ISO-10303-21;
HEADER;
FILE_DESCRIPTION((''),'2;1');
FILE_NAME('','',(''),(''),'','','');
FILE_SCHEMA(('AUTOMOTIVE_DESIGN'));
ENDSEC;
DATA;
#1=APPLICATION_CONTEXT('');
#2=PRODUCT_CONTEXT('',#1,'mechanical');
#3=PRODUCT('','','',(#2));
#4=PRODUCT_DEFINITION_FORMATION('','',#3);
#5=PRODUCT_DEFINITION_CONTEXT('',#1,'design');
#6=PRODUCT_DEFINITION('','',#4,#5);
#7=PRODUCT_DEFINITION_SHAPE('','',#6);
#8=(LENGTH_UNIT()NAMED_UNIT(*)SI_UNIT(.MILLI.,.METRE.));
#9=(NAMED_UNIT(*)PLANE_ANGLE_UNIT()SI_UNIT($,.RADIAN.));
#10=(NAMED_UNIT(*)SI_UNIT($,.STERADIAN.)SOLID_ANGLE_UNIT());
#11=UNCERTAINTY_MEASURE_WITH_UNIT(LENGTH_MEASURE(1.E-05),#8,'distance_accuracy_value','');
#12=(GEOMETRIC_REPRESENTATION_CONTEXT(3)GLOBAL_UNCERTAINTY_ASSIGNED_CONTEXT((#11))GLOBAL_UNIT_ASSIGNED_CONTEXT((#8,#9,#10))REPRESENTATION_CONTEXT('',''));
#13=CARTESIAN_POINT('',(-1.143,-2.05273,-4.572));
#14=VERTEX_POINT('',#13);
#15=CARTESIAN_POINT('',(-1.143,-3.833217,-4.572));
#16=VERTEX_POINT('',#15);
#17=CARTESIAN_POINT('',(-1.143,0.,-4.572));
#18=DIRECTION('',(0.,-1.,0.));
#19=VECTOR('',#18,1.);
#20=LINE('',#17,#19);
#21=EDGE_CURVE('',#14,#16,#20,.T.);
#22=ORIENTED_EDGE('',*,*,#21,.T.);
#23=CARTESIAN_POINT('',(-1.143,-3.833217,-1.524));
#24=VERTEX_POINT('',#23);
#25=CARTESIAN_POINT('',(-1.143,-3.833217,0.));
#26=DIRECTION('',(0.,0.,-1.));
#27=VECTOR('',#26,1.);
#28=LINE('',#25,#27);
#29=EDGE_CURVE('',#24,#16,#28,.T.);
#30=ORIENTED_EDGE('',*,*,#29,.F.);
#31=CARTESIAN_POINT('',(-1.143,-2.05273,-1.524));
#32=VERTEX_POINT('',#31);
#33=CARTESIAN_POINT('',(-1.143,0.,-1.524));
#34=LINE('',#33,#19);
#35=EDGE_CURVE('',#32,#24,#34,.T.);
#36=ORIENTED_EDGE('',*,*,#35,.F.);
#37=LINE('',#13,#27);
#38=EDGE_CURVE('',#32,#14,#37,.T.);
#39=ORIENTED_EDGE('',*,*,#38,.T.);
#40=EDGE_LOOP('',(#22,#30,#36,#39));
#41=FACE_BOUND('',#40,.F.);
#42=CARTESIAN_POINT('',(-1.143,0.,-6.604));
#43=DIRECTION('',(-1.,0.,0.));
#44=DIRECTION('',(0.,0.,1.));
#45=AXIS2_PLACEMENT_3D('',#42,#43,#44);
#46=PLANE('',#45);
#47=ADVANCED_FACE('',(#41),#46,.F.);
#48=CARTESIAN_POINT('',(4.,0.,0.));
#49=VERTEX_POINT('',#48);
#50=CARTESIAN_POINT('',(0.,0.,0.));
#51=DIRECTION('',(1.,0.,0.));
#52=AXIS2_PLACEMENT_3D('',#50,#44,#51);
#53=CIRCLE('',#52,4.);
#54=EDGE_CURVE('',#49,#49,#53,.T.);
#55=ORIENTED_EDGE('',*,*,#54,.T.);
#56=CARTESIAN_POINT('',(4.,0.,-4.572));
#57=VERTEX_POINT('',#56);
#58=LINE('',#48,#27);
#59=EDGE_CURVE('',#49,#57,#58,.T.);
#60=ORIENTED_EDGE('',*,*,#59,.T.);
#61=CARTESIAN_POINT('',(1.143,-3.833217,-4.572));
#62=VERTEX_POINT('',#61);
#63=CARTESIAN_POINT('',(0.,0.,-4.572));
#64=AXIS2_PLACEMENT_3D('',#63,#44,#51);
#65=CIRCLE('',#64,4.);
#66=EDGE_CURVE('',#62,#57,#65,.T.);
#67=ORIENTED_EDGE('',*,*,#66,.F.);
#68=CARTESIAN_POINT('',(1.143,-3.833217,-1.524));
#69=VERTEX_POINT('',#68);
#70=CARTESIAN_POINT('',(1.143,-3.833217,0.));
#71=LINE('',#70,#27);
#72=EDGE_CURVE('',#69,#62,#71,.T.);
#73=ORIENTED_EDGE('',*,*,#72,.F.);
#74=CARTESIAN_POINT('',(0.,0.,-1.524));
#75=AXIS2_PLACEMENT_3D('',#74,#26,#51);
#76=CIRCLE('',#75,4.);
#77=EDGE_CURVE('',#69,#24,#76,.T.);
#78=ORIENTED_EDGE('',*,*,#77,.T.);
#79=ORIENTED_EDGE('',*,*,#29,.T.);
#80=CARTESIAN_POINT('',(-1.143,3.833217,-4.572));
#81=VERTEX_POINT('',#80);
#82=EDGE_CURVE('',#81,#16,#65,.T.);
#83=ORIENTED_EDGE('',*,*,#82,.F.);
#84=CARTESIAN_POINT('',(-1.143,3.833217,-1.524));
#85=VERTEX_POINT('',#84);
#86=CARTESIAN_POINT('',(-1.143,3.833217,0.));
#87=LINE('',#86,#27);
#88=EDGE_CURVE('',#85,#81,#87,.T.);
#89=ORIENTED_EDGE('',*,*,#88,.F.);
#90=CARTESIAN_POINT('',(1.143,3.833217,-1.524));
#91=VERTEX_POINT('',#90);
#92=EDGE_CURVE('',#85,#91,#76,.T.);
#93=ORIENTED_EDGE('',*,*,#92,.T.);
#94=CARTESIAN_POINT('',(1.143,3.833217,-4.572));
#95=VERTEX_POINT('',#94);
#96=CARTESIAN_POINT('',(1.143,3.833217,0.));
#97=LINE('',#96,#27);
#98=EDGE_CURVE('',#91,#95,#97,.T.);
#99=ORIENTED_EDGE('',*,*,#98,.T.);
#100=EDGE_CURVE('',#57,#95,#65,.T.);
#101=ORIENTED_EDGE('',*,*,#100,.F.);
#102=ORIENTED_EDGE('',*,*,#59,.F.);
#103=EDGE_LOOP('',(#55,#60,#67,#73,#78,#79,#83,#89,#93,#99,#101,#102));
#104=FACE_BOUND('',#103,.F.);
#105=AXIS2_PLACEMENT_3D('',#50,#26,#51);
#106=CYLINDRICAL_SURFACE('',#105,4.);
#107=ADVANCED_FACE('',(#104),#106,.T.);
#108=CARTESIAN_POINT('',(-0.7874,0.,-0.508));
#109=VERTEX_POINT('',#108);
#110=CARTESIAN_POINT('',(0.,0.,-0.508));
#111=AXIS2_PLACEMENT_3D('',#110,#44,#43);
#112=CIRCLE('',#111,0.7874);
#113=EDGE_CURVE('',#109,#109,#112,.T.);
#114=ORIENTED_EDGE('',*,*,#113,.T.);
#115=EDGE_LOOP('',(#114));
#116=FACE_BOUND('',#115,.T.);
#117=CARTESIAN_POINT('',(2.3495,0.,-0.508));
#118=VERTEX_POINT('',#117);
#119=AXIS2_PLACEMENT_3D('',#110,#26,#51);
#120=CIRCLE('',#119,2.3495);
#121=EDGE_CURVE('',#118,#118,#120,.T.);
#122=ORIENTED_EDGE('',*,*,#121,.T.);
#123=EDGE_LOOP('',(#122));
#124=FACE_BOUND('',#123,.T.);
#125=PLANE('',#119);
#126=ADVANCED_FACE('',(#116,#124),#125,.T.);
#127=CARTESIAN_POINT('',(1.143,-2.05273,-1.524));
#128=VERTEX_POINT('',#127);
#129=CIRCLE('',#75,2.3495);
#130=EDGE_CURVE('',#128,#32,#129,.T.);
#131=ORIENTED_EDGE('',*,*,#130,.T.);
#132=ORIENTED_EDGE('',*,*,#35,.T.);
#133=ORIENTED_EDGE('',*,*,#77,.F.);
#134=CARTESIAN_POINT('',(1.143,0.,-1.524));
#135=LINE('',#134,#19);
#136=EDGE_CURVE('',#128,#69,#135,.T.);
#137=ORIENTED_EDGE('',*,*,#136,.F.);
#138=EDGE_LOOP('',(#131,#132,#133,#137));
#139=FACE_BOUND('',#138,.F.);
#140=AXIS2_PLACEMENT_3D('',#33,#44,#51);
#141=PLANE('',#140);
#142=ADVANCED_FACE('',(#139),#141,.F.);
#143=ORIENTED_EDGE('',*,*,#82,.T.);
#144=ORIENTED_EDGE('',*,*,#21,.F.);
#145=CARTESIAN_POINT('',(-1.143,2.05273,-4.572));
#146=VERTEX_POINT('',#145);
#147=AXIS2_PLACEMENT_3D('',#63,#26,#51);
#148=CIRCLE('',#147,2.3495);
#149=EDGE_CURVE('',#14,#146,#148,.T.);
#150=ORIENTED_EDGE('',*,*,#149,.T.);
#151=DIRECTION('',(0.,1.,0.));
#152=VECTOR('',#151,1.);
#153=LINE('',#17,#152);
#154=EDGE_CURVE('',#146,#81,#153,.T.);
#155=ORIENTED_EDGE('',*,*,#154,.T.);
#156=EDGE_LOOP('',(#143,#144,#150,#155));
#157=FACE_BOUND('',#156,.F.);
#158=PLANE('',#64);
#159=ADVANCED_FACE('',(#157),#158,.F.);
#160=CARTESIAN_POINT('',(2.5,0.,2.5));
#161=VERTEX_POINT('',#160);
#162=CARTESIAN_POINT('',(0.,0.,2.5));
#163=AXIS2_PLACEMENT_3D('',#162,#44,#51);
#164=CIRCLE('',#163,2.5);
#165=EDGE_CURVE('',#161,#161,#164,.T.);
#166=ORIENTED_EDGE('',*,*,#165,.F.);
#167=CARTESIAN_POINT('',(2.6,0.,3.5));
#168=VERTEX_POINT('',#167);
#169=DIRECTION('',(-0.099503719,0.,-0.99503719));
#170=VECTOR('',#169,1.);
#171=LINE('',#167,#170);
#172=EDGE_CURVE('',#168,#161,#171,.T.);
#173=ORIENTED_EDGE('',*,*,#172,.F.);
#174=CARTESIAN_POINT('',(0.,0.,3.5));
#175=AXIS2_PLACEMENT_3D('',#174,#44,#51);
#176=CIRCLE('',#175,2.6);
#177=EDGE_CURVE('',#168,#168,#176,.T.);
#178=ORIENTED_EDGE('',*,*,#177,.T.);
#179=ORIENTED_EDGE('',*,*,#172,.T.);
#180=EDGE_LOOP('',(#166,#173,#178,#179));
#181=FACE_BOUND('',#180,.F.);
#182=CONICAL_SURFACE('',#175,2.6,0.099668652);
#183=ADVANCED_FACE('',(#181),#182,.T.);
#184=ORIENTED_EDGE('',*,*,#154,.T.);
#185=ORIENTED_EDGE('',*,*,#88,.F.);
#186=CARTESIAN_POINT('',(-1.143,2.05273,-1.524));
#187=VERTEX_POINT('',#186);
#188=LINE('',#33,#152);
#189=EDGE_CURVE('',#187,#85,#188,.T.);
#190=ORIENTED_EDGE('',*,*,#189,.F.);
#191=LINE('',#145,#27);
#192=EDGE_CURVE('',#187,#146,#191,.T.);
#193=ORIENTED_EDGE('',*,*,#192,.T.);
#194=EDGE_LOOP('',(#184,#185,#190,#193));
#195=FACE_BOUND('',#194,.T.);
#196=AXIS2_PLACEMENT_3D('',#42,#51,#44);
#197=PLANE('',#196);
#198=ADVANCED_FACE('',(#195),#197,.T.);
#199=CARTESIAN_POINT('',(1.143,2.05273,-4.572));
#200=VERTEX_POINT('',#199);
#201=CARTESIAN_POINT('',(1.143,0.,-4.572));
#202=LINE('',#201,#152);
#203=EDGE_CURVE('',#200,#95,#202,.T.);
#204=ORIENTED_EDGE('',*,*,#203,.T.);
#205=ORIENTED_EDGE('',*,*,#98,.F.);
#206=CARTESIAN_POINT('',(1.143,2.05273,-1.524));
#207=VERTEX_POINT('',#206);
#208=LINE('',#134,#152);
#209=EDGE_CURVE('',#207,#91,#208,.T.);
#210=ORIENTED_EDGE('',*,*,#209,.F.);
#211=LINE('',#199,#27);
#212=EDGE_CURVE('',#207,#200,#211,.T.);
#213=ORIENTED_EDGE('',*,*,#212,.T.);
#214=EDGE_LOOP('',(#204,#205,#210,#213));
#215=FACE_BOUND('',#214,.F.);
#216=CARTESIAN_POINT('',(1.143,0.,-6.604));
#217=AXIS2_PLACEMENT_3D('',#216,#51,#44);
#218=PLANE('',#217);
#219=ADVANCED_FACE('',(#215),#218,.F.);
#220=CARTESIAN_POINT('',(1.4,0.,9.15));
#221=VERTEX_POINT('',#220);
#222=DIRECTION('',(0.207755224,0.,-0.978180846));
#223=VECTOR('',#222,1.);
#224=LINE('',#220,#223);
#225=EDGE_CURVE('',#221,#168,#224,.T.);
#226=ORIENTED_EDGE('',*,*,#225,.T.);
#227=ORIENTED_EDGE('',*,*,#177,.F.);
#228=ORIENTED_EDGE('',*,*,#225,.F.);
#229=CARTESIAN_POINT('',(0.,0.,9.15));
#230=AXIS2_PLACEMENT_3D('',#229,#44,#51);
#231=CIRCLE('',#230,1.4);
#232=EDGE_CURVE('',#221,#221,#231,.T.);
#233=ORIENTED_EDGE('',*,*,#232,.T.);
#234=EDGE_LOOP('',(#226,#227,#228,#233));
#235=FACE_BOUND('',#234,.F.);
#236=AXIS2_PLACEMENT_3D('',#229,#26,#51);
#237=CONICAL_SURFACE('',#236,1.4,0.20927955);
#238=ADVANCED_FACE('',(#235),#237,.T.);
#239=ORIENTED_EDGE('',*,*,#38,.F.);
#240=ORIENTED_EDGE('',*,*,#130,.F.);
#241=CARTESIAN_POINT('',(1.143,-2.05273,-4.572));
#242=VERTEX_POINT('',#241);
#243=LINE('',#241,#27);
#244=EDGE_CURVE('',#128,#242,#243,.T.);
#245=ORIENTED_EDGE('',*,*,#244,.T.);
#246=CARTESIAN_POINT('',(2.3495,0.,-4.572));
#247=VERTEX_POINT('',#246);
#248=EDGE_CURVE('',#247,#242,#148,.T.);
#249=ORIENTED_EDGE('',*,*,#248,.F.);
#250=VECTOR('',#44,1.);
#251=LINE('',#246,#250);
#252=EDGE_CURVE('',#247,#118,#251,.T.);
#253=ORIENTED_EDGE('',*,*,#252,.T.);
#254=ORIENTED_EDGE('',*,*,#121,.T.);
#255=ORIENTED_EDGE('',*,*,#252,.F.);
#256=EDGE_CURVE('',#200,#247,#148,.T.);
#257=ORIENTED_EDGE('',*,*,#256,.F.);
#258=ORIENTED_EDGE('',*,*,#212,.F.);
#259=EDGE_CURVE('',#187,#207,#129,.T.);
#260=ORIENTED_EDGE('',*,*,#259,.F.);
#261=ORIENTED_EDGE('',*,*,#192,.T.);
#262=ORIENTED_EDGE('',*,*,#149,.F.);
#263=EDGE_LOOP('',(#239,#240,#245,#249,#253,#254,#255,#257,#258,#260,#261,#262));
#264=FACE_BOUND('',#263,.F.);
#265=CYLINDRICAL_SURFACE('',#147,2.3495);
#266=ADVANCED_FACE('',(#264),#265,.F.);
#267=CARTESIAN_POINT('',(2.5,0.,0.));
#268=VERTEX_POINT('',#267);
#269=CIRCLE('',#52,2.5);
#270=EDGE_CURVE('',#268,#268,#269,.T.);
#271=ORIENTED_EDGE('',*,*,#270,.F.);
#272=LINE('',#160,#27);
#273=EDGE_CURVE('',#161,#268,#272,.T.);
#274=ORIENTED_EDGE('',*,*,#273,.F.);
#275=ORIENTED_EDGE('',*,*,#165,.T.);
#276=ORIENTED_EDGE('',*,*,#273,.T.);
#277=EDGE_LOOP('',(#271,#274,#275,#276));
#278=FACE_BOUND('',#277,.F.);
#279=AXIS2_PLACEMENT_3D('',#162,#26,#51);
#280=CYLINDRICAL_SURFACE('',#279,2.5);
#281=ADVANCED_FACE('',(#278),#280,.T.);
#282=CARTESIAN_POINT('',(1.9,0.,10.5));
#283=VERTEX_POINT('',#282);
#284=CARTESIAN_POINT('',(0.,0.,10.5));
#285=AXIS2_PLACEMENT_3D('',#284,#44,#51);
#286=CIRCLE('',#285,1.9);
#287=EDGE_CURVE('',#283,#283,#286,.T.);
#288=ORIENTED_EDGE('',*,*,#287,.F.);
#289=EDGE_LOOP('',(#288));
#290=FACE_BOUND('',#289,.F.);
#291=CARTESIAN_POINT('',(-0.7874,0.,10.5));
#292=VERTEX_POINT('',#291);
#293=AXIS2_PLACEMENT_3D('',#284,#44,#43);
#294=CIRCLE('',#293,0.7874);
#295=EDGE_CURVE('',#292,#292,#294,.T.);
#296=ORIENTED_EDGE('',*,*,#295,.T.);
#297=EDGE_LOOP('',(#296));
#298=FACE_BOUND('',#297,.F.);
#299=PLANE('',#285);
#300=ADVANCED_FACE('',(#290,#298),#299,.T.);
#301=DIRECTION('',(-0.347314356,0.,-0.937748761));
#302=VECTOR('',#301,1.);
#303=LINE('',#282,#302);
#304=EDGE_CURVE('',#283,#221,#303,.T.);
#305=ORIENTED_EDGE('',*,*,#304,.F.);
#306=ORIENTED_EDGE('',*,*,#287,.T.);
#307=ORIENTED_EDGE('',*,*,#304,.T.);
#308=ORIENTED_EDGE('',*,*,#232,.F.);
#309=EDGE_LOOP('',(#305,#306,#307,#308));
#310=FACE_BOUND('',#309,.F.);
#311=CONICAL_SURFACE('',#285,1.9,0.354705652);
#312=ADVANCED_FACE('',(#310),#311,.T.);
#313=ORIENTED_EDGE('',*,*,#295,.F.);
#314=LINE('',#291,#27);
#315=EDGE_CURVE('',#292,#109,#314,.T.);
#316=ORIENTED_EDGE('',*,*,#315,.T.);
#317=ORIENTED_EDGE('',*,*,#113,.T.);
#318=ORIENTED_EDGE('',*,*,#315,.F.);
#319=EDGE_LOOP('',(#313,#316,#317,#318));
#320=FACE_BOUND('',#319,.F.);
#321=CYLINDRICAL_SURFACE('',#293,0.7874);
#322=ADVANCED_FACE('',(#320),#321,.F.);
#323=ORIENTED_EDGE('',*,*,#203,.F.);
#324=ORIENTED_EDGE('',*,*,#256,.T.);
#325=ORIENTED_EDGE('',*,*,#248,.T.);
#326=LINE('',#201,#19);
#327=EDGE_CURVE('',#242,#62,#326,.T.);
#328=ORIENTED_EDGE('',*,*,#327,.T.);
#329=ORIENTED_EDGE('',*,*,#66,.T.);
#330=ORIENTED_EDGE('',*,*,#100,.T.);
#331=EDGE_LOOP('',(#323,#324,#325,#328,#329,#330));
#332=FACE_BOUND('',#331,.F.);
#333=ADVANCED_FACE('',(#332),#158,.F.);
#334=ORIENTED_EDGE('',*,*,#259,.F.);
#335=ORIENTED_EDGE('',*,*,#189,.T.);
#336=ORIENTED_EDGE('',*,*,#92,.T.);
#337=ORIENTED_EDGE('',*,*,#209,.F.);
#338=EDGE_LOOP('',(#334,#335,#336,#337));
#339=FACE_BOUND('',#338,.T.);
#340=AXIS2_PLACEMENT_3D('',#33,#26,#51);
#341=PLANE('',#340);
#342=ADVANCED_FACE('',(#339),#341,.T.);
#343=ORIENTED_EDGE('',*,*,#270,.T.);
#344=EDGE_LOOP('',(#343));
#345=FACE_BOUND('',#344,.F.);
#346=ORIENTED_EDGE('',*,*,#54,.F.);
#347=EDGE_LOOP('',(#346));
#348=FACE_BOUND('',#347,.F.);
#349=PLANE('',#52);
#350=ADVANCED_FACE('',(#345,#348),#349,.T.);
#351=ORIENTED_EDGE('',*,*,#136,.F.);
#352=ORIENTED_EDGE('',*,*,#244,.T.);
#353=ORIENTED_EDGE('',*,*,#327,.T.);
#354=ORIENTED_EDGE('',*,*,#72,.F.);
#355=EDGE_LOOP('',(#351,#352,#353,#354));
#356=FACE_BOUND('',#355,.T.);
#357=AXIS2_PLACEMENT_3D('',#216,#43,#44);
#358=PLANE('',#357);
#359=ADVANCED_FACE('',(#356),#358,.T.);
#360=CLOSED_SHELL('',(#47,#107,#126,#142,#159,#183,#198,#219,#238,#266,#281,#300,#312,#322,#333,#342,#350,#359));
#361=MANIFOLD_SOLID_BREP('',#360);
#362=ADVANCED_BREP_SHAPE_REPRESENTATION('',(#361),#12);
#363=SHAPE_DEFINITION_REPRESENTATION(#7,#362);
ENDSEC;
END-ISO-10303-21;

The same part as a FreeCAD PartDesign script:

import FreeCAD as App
import Part
import Sketcher

V = App.Vector
Q = App.Units.Quantity

doc = App.newDocument("Part")
params = doc.addObject("Spreadsheet::Sheet", "Params")
for row, (alias, value) in enumerate([
    ("sketch1_height", "0.18 in"),
    ("revolution_angle", "360 deg"),
    ("sketch2_diameter", "0.185 in"),
    ("pocket1_length", "0.16 in"),
    ("sketch3_diameter", "0.062 in"),
    ("sketch4_height", "0.2 in"),
    ("sketch4_width", "0.09 in"),
], start=1):
    params.set(f"A{row}", alias)
    params.set(f"B{row}", "=" + value)
    params.setAlias(f"B{row}", alias)

body = doc.addObject("PartDesign::Body", "Body")

# Sketch on XZ plane
sketch1 = body.newObject("Sketcher::SketchObject", "Sketch")
sketch1.AttachmentSupport = (doc.getObject("XZ_Plane"), [""])
sketch1.MapMode = "FlatFace"
sketch1.addGeometry([
    Part.LineSegment(V(4, 0, 0), V(2.5, 0, 0)),  # 0
    Part.LineSegment(V(2.5, 0, 0), V(2.5, 2.5, 0)),  # 1
    Part.LineSegment(V(2.5, 2.5, 0), V(2.6, 3.5, 0)),  # 2
    Part.LineSegment(V(2.6, 3.5, 0), V(1.4, 9.2, 0)),  # 3
    Part.LineSegment(V(1.4, 9.2, 0), V(1.9, 10.5, 0)),  # 4
    Part.LineSegment(V(1.9, 10.5, 0), V(0, 10.5, 0)),  # 5
    Part.LineSegment(V(0, 10.5, 0), V(0, -4.6, 0)),  # 6
    Part.LineSegment(V(0, -4.6, 0), V(4, -4.6, 0)),  # 7
    Part.LineSegment(V(4, -4.6, 0), V(4, 0, 0)),  # 8
], False)
sketch1.addConstraint([
    Sketcher.Constraint("Coincident", 0, 2, 1, 1),
    Sketcher.Constraint("Coincident", 1, 2, 2, 1),
    Sketcher.Constraint("Coincident", 2, 2, 3, 1),
    Sketcher.Constraint("Coincident", 3, 2, 4, 1),
    Sketcher.Constraint("Coincident", 4, 2, 5, 1),
    Sketcher.Constraint("Coincident", 5, 2, 6, 1),
    Sketcher.Constraint("Coincident", 6, 2, 7, 1),
    Sketcher.Constraint("Coincident", 7, 2, 8, 1),
    Sketcher.Constraint("Coincident", 8, 2, 0, 1),
    Sketcher.Constraint("Horizontal", 0),
    Sketcher.Constraint("Vertical", 1),
    Sketcher.Constraint("Horizontal", 5),
    Sketcher.Constraint("Vertical", 6),
    Sketcher.Constraint("Horizontal", 7),
    Sketcher.Constraint("Vertical", 8),
    Sketcher.Constraint("PointOnObject", 0, 2, -1),
    Sketcher.Constraint("PointOnObject", 5, 2, -2),
    Sketcher.Constraint("DistanceY", 8, 1, 8, 2, Q("0.18 in")),
    Sketcher.Constraint("DistanceX", 0, 2, 0, 1, 1.5),
    Sketcher.Constraint("DistanceX", 5, 2, 5, 1, 1.9),
    Sketcher.Constraint("DistanceX", 7, 1, 7, 2, 4.0),
    Sketcher.Constraint("DistanceY", 1, 1, 1, 2, 2.5),
    Sketcher.Constraint("DistanceY", 6, 2, 6, 1, 15.072),
    Sketcher.Constraint("DistanceX", -1, 1, 2, 2, 2.6),
    Sketcher.Constraint("DistanceY", -1, 1, 2, 2, 3.5),
    Sketcher.Constraint("DistanceX", -1, 1, 3, 2, 1.4),
    Sketcher.Constraint("DistanceY", -1, 1, 3, 2, 9.15),
])
sketch1.setExpression("Constraints[17]", "Params.sketch1_height")
revolution = body.newObject("PartDesign::Revolution", "Revolution")
revolution.Profile = sketch1
revolution.ReferenceAxis = (sketch1, ["V_Axis"])
revolution.setExpression("Angle", "Params.revolution_angle")

# Sketch on XY plane
sketch2 = body.newObject("Sketcher::SketchObject", "Sketch001")
sketch2.AttachmentSupport = (doc.getObject("XY_Plane"), [""])
sketch2.MapMode = "FlatFace"
sketch2.AttachmentOffset = App.Placement(V(0, 0, -0.18 * 25.4), App.Rotation())
sketch2.addGeometry(Part.Circle(V(0, 0, 0), V(0, 0, 1), 2.3), False)
sketch2.addConstraint([
    Sketcher.Constraint("Coincident", 0, 3, -1, 1),
    Sketcher.Constraint("Diameter", 0, Q("0.185 in")),
])
sketch2.setExpression("Constraints[1]", "Params.sketch2_diameter")
pocket1 = body.newObject("PartDesign::Pocket", "Pocket")
pocket1.Profile = sketch2
pocket1.setExpression("Length", "Params.pocket1_length")
pocket1.Reversed = True

# Sketch on XY plane
sketch3 = body.newObject("Sketcher::SketchObject", "Sketch002")
sketch3.AttachmentSupport = (doc.getObject("XY_Plane"), [""])
sketch3.MapMode = "FlatFace"
sketch3.AttachmentOffset = App.Placement(V(0, 0, 10.5), App.Rotation())
sketch3.addGeometry(Part.Circle(V(0, 0, 0), V(0, 0, 1), 0.8), False)
sketch3.addConstraint([
    Sketcher.Constraint("Coincident", 0, 3, -1, 1),
    Sketcher.Constraint("Diameter", 0, Q("0.062 in")),
])
sketch3.setExpression("Constraints[1]", "Params.sketch3_diameter")
pocket2 = body.newObject("PartDesign::Pocket", "Pocket001")
pocket2.Profile = sketch3
pocket2.Type = "ThroughAll"

# Sketch on XZ plane
sketch4 = body.newObject("Sketcher::SketchObject", "Sketch003")
sketch4.AttachmentSupport = (doc.getObject("XZ_Plane"), [""])
sketch4.MapMode = "FlatFace"
sketch4.addGeometry([
    Part.LineSegment(V(-1.1, -1.5, 0), V(-1.1, -6.6, 0)),
    Part.LineSegment(V(-1.1, -6.6, 0), V(1.1, -6.6, 0)),
    Part.LineSegment(V(1.1, -6.6, 0), V(1.1, -1.5, 0)),
    Part.LineSegment(V(1.1, -1.5, 0), V(-1.1, -1.5, 0)),
], False)
sketch4.addConstraint([
    Sketcher.Constraint("Coincident", 0, 2, 1, 1),
    Sketcher.Constraint("Coincident", 1, 2, 2, 1),
    Sketcher.Constraint("Coincident", 2, 2, 3, 1),
    Sketcher.Constraint("Coincident", 3, 2, 0, 1),
    Sketcher.Constraint("Vertical", 0),
    Sketcher.Constraint("Horizontal", 1),
    Sketcher.Constraint("Vertical", 2),
    Sketcher.Constraint("Horizontal", 3),
    Sketcher.Constraint("DistanceY", 0, 2, 0, 1, Q("0.2 in")),
    Sketcher.Constraint("DistanceX", 1, 1, 1, 2, Q("0.09 in")),
    Sketcher.Constraint("DistanceY", 0, 2, -1, 1, Q("0.26 in")),
    Sketcher.Constraint("DistanceX", 0, 2, -1, 1, Q("0.045 in")),
])
sketch4.setExpression("Constraints[8]", "Params.sketch4_height")
sketch4.setExpression("Constraints[9]", "Params.sketch4_width")
pocket3 = body.newObject("PartDesign::Pocket", "Pocket002")
pocket3.Profile = sketch4
pocket3.Type = "ThroughAll"
pocket3.Midplane = True

doc.recompute()
